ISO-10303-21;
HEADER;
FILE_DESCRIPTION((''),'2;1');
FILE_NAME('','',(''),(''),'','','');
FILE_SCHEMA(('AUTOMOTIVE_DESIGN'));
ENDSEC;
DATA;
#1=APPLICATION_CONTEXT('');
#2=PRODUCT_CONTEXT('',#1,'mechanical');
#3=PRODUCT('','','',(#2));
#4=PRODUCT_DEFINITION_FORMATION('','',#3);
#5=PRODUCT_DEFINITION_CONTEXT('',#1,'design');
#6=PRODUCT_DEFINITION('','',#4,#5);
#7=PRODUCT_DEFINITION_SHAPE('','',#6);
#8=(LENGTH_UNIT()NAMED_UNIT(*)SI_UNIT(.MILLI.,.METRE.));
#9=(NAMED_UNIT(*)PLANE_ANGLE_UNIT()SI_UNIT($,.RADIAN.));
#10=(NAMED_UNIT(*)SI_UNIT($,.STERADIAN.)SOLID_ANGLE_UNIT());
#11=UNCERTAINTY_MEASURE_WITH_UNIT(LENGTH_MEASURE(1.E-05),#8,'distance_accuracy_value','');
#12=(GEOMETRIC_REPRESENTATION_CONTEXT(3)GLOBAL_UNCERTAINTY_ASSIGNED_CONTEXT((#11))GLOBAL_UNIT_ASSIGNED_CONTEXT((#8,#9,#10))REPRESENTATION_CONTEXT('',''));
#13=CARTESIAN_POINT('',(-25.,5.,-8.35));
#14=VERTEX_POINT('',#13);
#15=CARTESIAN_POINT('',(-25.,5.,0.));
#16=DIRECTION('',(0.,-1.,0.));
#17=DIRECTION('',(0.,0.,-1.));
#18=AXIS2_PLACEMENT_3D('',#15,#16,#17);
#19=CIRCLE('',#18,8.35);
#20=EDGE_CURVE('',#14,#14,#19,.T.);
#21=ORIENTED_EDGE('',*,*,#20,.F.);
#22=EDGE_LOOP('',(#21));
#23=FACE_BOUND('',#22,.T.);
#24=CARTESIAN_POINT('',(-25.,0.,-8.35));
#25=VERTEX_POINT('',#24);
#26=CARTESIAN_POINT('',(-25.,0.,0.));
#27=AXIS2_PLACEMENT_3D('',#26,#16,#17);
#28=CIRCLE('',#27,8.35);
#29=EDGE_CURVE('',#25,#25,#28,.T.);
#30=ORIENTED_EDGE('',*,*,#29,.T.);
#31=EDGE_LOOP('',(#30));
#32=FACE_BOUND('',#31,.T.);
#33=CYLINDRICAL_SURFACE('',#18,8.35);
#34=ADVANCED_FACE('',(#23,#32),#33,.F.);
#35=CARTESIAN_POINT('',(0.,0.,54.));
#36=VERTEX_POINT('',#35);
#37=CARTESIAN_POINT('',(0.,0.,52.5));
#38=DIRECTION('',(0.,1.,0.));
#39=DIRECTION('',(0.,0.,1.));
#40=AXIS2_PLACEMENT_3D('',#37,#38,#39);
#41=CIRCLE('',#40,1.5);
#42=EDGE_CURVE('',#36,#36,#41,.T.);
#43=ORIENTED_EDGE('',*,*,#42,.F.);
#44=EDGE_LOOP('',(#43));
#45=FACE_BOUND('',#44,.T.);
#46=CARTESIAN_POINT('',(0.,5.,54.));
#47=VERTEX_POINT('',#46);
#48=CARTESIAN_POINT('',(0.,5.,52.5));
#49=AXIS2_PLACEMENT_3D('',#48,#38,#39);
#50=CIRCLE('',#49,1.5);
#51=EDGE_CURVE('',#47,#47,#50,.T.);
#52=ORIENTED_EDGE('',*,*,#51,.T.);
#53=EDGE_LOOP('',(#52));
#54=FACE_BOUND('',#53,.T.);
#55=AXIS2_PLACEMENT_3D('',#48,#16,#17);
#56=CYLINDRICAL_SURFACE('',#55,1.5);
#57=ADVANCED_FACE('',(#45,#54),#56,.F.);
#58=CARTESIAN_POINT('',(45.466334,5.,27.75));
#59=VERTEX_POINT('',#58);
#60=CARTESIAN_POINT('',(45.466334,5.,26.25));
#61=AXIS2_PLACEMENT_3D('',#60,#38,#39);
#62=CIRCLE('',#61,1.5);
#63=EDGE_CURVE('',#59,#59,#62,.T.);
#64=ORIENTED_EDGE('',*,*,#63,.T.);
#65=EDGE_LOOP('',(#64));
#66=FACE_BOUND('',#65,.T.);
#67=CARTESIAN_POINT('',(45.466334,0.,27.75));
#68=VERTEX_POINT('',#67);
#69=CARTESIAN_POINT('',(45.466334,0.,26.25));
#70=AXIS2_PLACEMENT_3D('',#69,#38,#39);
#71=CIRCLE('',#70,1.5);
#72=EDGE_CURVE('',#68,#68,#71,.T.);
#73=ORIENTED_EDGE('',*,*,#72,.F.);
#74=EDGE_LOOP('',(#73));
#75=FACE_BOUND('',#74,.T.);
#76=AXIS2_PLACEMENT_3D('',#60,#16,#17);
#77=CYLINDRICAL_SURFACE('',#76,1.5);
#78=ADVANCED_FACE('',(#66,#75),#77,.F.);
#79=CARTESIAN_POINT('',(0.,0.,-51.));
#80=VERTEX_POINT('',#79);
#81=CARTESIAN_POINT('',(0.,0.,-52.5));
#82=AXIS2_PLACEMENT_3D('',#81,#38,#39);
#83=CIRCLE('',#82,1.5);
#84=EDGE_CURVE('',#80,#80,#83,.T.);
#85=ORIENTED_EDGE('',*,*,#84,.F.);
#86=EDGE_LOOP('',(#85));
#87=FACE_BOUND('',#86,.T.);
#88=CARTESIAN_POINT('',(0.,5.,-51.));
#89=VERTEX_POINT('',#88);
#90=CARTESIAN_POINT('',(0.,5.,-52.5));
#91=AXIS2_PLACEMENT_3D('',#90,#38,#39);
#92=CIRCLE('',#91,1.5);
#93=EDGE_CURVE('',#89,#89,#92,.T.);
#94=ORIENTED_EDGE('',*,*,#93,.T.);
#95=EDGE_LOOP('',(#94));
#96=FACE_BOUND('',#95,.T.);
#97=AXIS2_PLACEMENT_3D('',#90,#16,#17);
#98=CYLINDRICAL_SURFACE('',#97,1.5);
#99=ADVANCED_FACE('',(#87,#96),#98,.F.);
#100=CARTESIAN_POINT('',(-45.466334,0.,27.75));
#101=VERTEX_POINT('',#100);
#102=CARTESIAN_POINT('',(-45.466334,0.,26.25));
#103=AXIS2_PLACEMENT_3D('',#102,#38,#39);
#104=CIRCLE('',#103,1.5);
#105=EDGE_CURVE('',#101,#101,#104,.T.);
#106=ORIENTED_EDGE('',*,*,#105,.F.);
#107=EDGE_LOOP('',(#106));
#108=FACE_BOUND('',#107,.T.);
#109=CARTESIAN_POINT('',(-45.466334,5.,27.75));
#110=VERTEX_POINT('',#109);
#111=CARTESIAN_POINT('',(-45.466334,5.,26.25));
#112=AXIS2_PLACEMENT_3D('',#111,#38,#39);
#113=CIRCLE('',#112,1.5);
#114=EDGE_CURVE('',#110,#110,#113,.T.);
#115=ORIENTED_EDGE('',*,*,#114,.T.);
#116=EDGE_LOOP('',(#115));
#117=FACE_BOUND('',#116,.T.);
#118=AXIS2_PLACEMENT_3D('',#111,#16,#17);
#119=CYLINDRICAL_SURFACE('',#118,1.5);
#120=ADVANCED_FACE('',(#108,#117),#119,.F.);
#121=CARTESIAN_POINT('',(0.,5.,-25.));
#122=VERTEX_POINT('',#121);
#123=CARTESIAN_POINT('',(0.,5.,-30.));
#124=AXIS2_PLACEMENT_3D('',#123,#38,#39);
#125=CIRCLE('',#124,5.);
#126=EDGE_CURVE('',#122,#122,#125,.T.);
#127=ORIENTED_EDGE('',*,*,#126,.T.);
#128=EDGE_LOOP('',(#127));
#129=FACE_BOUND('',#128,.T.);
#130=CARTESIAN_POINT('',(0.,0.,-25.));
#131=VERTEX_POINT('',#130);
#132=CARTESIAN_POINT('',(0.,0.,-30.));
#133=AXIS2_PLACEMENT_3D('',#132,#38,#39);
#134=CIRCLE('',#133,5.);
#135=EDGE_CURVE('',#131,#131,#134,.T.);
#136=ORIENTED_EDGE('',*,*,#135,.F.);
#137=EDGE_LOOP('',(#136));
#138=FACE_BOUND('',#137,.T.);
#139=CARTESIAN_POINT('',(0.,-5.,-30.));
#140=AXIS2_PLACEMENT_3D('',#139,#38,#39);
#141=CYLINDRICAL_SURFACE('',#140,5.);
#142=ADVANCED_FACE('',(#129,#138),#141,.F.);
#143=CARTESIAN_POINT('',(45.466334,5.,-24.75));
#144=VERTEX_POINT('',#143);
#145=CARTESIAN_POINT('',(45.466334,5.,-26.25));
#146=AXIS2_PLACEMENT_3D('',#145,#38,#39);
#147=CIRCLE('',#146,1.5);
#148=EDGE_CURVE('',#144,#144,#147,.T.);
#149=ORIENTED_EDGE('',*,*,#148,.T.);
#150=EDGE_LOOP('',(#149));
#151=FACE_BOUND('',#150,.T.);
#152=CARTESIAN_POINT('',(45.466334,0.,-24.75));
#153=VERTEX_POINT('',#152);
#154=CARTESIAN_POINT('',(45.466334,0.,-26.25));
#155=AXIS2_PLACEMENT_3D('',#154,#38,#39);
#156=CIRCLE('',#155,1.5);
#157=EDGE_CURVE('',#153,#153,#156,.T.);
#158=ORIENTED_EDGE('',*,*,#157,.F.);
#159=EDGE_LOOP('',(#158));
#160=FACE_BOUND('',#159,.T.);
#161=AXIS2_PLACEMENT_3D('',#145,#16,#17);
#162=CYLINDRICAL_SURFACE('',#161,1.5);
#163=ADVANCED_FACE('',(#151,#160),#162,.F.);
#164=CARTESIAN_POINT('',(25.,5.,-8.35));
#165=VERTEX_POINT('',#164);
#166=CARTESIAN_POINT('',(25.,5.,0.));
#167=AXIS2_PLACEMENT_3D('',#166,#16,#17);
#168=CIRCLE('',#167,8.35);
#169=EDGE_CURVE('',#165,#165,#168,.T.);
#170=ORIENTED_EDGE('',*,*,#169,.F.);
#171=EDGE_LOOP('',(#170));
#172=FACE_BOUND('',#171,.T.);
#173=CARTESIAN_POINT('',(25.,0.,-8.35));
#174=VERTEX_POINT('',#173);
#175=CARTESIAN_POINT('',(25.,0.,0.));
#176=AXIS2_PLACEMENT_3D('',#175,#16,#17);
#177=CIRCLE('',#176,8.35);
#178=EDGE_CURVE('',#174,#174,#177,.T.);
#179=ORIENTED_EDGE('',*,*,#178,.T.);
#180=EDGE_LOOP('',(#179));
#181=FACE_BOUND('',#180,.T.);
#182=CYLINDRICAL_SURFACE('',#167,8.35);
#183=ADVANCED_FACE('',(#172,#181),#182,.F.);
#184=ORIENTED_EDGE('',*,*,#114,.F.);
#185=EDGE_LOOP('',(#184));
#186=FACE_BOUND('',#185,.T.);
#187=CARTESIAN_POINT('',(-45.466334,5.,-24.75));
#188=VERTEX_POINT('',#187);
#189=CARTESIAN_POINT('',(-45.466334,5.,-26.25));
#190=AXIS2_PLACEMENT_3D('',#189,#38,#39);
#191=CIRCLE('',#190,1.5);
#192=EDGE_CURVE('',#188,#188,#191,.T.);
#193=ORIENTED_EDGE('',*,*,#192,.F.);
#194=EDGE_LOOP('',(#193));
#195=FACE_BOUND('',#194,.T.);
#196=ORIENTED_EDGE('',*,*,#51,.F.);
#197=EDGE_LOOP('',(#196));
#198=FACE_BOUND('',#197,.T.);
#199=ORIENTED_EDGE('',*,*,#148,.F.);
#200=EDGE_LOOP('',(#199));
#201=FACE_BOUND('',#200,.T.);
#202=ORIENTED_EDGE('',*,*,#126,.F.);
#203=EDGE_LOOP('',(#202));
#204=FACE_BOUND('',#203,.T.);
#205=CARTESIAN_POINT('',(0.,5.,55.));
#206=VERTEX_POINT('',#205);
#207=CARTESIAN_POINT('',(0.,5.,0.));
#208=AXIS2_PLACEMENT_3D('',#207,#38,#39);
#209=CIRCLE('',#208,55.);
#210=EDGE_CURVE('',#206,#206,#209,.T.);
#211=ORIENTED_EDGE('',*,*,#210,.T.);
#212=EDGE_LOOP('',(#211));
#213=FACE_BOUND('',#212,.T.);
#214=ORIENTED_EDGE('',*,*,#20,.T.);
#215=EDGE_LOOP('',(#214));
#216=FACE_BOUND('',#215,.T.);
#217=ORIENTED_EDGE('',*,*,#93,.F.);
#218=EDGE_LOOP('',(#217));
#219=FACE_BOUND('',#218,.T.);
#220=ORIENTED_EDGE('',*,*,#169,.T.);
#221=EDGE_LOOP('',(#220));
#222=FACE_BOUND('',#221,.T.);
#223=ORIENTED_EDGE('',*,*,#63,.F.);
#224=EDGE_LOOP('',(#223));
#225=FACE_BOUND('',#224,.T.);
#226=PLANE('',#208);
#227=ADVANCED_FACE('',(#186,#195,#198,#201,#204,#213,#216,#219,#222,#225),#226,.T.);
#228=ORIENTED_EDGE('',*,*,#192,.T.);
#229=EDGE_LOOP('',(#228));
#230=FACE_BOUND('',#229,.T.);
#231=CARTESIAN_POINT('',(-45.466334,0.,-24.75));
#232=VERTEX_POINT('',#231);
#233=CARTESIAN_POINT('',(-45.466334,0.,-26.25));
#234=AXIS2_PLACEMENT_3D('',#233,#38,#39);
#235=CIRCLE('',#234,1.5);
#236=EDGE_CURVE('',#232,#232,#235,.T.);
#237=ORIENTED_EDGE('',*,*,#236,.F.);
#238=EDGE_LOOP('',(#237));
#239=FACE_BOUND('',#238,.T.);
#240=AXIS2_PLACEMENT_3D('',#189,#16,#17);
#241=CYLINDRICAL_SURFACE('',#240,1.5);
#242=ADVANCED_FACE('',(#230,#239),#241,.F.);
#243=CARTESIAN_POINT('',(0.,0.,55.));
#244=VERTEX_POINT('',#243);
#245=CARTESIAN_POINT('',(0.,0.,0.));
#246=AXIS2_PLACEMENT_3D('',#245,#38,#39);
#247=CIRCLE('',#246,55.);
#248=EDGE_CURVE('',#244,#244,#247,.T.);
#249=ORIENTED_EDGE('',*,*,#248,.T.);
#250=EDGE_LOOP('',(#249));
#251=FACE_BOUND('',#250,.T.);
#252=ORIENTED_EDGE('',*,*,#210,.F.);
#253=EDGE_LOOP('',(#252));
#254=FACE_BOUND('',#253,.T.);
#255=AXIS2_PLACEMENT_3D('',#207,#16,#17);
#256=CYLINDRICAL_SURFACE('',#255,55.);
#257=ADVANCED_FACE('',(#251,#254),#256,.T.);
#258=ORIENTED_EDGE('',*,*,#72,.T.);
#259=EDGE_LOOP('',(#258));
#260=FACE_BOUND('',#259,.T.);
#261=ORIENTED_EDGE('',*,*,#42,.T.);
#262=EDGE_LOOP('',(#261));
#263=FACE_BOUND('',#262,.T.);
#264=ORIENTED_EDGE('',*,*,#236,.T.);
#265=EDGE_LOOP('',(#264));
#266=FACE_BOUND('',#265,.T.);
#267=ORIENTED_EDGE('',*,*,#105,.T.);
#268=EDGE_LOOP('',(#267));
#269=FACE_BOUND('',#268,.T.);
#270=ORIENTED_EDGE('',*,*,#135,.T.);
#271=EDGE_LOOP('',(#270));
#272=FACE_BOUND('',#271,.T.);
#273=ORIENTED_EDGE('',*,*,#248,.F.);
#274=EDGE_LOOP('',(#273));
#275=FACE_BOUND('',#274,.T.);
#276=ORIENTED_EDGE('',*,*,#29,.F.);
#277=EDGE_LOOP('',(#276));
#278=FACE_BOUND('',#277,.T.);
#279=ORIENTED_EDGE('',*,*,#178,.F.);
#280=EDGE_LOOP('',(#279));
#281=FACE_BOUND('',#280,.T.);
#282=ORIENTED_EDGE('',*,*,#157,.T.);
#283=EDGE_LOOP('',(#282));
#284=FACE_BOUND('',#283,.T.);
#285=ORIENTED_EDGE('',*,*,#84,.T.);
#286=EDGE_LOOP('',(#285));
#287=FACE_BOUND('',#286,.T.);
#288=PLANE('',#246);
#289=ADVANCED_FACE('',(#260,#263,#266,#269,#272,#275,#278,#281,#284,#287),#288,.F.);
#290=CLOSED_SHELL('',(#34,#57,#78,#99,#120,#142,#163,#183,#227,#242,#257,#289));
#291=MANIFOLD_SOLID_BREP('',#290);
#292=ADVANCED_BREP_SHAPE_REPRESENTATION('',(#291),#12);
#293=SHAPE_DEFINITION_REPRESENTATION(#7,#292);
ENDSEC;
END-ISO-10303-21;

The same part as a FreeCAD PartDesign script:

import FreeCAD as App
import Part
import Sketcher

doc = App.newDocument("Part")
params = doc.addObject("Spreadsheet::Sheet", "Params")
for row, (alias, value) in enumerate([
    ("sketch1_diameter", "110 mm"),
    ("sketch1_diameter2", "3 mm"),
    ("pad1_length", "5 mm"),
    ("sketch2_diameter", "10 mm"),
    ("pocket1_length", "10 mm"),
    ("sketch3_diameter", "16.7 mm"),
], start=1):
    params.set(f"A{row}", alias)
    params.set(f"B{row}", "=" + value)
    params.setAlias(f"B{row}", alias)

body = doc.addObject("PartDesign::Body", "Body")

# Sketch on XZ plane
sketch1 = body.newObject("Sketcher::SketchObject", "Sketch")
sketch1.AttachmentSupport = (doc.getObject("XZ_Plane"), [""])
sketch1.MapMode = "FlatFace"
sketch1.addGeometry(Part.Circle(App.Vector(0, 0, 0), App.Vector(0, 0, 1), 55), False)
sketch1.addGeometry(Part.Circle(App.Vector(-45.466334, -26.25, 0), App.Vector(0, 0, 1), 1.5), False)
sketch1.addGeometry(Part.Circle(App.Vector(0, -52.5, 0), App.Vector(0, 0, 1), 1.5), False)
sketch1.addGeometry(Part.Circle(App.Vector(-45.466334, 26.25, 0), App.Vector(0, 0, 1), 1.5), False)
sketch1.addGeometry(Part.Circle(App.Vector(45.466334, -26.25, 0), App.Vector(0, 0, 1), 1.5), False)
sketch1.addGeometry(Part.Circle(App.Vector(0, 52.5, 0), App.Vector(0, 0, 1), 1.5), False)
sketch1.addGeometry(Part.Circle(App.Vector(45.466334, 26.25, 0), App.Vector(0, 0, 1), 1.5), False)
sketch1.addConstraint(Sketcher.Constraint("Coincident", 0, 3, -1, 1))
sketch1.addConstraint(Sketcher.Constraint("Equal", 1, 2))
sketch1.addConstraint(Sketcher.Constraint("Equal", 2, 3))
sketch1.addConstraint(Sketcher.Constraint("Equal", 3, 4))
sketch1.addConstraint(Sketcher.Constraint("Equal", 4, 5))
sketch1.addConstraint(Sketcher.Constraint("Equal", 5, 6))
sketch1.addConstraint(Sketcher.Constraint("Symmetric", 3, 3, 4, 3, -1, 1))
sketch1.addConstraint(Sketcher.Constraint("Symmetric", 2, 3, 5, 3, -1, 1))
sketch1.addConstraint(Sketcher.Constraint("Symmetric", 1, 3, 6, 3, -1, 1))
sketch1.addConstraint(Sketcher.Constraint("Symmetric", 1, 3, 4, 3, -2))
sketch1.addConstraint(Sketcher.Constraint("PointOnObject", 2, 3, -2))
sketch1.addConstraint(Sketcher.Constraint("Diameter", 0, 110.0))
sketch1.addConstraint(Sketcher.Constraint("Diameter", 1, 3.0))
sketch1.addConstraint(Sketcher.Constraint("DistanceY", 2, 3, 5, 3, 105.0))
sketch1.addConstraint(Sketcher.Constraint("DistanceY", 1, 3, 3, 3, 52.5))
sketch1.addConstraint(Sketcher.Constraint("DistanceX", 1, 3, -1, 1, 45.466334))
sketch1.setExpression("Constraints[11]", "Params.sketch1_diameter")
sketch1.setExpression("Constraints[12]", "Params.sketch1_diameter2")
pad1 = body.newObject("PartDesign::Pad", "Pad")
pad1.Profile = sketch1
pad1.setExpression("Length", "Params.pad1_length")
pad1.Reversed = True

# Sketch on XZ plane
sketch2 = body.newObject("Sketcher::SketchObject", "Sketch001")
sketch2.AttachmentSupport = (doc.getObject("XZ_Plane"), [""])
sketch2.MapMode = "FlatFace"
sketch2.AttachmentOffset = App.Placement(App.Vector(0, 0, -5), App.Rotation())
sketch2.addGeometry(Part.Circle(App.Vector(0, -30, 0), App.Vector(0, 0, 1), 5), False)
sketch2.addConstraint(Sketcher.Constraint("PointOnObject", 0, 3, -2))
sketch2.addConstraint(Sketcher.Constraint("Diameter", 0, 10.0))
sketch2.addConstraint(Sketcher.Constraint("DistanceY", 0, 3, -1, 1, 30.0))
sketch2.setExpression("Constraints[1]", "Params.sketch2_diameter")
pocket1 = body.newObject("PartDesign::Pocket", "Pocket")
pocket1.Profile = sketch2
pocket1.setExpression("Length", "Params.pocket1_length")
pocket1.Reversed = True

# Sketch on XZ plane
sketch3 = body.newObject("Sketcher::SketchObject", "Sketch002")
sketch3.AttachmentSupport = (doc.getObject("XZ_Plane"), [""])
sketch3.MapMode = "FlatFace"
sketch3.addGeometry(Part.Circle(App.Vector(-25, 0, 0), App.Vector(0, 0, 1), 8.35), False)
sketch3.addGeometry(Part.Circle(App.Vector(25, 0, 0), App.Vector(0, 0, 1), 8.35), False)
sketch3.addConstraint(Sketcher.Constraint("Equal", 0, 1))
sketch3.addConstraint(Sketcher.Constraint("Symmetric", 0, 3, 1, 3, -1, 1))
sketch3.addConstraint(Sketcher.Constraint("PointOnObject", 0, 3, -1))
sketch3.addConstraint(Sketcher.Constraint("Diameter", 0, 16.7))
sketch3.addConstraint(Sketcher.Constraint("DistanceX", 0, 3, -1, 1, 25.0))
sketch3.setExpression("Constraints[3]", "Params.sketch3_diameter")
pocket2 = body.newObject("PartDesign::Pocket", "Pocket001")
pocket2.Profile = sketch3
pocket2.Type = "ThroughAll"

doc.recompute()
